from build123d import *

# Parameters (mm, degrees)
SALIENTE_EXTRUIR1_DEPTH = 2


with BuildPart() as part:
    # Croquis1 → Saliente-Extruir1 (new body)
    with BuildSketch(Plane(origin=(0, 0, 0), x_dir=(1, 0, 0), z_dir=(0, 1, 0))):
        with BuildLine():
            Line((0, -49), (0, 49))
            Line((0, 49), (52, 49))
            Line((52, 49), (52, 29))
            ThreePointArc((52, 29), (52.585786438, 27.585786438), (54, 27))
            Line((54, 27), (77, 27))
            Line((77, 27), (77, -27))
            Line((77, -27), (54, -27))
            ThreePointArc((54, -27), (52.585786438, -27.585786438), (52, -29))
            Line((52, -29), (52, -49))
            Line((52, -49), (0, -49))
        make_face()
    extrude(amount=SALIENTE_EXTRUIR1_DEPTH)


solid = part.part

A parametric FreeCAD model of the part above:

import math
import FreeCAD as App
import Part
import Sketcher

doc = App.newDocument("Part")
body = doc.addObject("PartDesign::Body", "Body")

# Sketch on XZ plane
sketch1 = body.newObject("Sketcher::SketchObject", "Sketch")
sketch1.AttachmentSupport = (doc.getObject("XZ_Plane"), [""])
sketch1.MapMode = "FlatFace"
sketch1.addGeometry([
    Part.LineSegment(App.Vector(0, -49, 0), App.Vector(0, 49, 0)),  # 0
    Part.LineSegment(App.Vector(0, 49, 0), App.Vector(52, 49, 0)),  # 1
    Part.LineSegment(App.Vector(52, 49, 0), App.Vector(52, 29, 0)),  # 2
    Part.ArcOfCircle(Part.Circle(App.Vector(54, 29, 0), App.Vector(0, 0, 1), 2), math.radians(-180), math.radians(-90)),  # 3
    Part.LineSegment(App.Vector(54, 27, 0), App.Vector(77, 27, 0)),  # 4
    Part.LineSegment(App.Vector(77, 27, 0), App.Vector(77, -27, 0)),  # 5
    Part.LineSegment(App.Vector(77, -27, 0), App.Vector(54, -27, 0)),  # 6
    Part.ArcOfCircle(Part.Circle(App.Vector(54, -29, 0), App.Vector(0, 0, 1), 2), math.radians(90), math.radians(180)),  # 7
    Part.LineSegment(App.Vector(52, -29, 0), App.Vector(52, -49, 0)),  # 8
    Part.LineSegment(App.Vector(52, -49, 0), App.Vector(0, -49, 0)),  # 9
], False)
sketch1.addConstraint([
    Sketcher.Constraint("Coincident", 0, 2, 1, 1),
    Sketcher.Constraint("Coincident", 1, 2, 2, 1),
    Sketcher.Constraint("Tangent", 2, 2, 3, 1),
    Sketcher.Constraint("Tangent", 3, 2, 4, 1),
    Sketcher.Constraint("Coincident", 4, 2, 5, 1),
    Sketcher.Constraint("Coincident", 5, 2, 6, 1),
    Sketcher.Constraint("Tangent", 6, 2, 7, 1),
    Sketcher.Constraint("Tangent", 7, 2, 8, 1),
    Sketcher.Constraint("Coincident", 8, 2, 9, 1),
    Sketcher.Constraint("Coincident", 9, 2, 0, 1),
    Sketcher.Constraint("Vertical", 0),
    Sketcher.Constraint("Horizontal", 1),
    Sketcher.Constraint("Vertical", 2),
    Sketcher.Constraint("Horizontal", 4),
    Sketcher.Constraint("Vertical", 5),
    Sketcher.Constraint("Horizontal", 6),
    Sketcher.Constraint("Vertical", 8),
    Sketcher.Constraint("Horizontal", 9),
    Sketcher.Constraint("Equal", 3, 7),
    Sketcher.Constraint("Symmetric", 0, 2, 9, 2, -1, 1),
    Sketcher.Constraint("Symmetric", 3, 3, 7, 3, -1),
    Sketcher.Constraint("Radius", 3, 2.0),
    Sketcher.Constraint("DistanceX", 1, 1, 1, 2, 52.0),
    Sketcher.Constraint("DistanceX", 4, 1, 4, 2, 23.0),
    Sketcher.Constraint("DistanceY", 0, 1, 0, 2, 98.0),
    Sketcher.Constraint("DistanceY", 2, 2, 2, 1, 20.0),
])
pad1 = body.newObject("PartDesign::Pad", "Pad")
pad1.Profile = sketch1
pad1.Length = 2
pad1.Reversed = True

doc.recompute()
